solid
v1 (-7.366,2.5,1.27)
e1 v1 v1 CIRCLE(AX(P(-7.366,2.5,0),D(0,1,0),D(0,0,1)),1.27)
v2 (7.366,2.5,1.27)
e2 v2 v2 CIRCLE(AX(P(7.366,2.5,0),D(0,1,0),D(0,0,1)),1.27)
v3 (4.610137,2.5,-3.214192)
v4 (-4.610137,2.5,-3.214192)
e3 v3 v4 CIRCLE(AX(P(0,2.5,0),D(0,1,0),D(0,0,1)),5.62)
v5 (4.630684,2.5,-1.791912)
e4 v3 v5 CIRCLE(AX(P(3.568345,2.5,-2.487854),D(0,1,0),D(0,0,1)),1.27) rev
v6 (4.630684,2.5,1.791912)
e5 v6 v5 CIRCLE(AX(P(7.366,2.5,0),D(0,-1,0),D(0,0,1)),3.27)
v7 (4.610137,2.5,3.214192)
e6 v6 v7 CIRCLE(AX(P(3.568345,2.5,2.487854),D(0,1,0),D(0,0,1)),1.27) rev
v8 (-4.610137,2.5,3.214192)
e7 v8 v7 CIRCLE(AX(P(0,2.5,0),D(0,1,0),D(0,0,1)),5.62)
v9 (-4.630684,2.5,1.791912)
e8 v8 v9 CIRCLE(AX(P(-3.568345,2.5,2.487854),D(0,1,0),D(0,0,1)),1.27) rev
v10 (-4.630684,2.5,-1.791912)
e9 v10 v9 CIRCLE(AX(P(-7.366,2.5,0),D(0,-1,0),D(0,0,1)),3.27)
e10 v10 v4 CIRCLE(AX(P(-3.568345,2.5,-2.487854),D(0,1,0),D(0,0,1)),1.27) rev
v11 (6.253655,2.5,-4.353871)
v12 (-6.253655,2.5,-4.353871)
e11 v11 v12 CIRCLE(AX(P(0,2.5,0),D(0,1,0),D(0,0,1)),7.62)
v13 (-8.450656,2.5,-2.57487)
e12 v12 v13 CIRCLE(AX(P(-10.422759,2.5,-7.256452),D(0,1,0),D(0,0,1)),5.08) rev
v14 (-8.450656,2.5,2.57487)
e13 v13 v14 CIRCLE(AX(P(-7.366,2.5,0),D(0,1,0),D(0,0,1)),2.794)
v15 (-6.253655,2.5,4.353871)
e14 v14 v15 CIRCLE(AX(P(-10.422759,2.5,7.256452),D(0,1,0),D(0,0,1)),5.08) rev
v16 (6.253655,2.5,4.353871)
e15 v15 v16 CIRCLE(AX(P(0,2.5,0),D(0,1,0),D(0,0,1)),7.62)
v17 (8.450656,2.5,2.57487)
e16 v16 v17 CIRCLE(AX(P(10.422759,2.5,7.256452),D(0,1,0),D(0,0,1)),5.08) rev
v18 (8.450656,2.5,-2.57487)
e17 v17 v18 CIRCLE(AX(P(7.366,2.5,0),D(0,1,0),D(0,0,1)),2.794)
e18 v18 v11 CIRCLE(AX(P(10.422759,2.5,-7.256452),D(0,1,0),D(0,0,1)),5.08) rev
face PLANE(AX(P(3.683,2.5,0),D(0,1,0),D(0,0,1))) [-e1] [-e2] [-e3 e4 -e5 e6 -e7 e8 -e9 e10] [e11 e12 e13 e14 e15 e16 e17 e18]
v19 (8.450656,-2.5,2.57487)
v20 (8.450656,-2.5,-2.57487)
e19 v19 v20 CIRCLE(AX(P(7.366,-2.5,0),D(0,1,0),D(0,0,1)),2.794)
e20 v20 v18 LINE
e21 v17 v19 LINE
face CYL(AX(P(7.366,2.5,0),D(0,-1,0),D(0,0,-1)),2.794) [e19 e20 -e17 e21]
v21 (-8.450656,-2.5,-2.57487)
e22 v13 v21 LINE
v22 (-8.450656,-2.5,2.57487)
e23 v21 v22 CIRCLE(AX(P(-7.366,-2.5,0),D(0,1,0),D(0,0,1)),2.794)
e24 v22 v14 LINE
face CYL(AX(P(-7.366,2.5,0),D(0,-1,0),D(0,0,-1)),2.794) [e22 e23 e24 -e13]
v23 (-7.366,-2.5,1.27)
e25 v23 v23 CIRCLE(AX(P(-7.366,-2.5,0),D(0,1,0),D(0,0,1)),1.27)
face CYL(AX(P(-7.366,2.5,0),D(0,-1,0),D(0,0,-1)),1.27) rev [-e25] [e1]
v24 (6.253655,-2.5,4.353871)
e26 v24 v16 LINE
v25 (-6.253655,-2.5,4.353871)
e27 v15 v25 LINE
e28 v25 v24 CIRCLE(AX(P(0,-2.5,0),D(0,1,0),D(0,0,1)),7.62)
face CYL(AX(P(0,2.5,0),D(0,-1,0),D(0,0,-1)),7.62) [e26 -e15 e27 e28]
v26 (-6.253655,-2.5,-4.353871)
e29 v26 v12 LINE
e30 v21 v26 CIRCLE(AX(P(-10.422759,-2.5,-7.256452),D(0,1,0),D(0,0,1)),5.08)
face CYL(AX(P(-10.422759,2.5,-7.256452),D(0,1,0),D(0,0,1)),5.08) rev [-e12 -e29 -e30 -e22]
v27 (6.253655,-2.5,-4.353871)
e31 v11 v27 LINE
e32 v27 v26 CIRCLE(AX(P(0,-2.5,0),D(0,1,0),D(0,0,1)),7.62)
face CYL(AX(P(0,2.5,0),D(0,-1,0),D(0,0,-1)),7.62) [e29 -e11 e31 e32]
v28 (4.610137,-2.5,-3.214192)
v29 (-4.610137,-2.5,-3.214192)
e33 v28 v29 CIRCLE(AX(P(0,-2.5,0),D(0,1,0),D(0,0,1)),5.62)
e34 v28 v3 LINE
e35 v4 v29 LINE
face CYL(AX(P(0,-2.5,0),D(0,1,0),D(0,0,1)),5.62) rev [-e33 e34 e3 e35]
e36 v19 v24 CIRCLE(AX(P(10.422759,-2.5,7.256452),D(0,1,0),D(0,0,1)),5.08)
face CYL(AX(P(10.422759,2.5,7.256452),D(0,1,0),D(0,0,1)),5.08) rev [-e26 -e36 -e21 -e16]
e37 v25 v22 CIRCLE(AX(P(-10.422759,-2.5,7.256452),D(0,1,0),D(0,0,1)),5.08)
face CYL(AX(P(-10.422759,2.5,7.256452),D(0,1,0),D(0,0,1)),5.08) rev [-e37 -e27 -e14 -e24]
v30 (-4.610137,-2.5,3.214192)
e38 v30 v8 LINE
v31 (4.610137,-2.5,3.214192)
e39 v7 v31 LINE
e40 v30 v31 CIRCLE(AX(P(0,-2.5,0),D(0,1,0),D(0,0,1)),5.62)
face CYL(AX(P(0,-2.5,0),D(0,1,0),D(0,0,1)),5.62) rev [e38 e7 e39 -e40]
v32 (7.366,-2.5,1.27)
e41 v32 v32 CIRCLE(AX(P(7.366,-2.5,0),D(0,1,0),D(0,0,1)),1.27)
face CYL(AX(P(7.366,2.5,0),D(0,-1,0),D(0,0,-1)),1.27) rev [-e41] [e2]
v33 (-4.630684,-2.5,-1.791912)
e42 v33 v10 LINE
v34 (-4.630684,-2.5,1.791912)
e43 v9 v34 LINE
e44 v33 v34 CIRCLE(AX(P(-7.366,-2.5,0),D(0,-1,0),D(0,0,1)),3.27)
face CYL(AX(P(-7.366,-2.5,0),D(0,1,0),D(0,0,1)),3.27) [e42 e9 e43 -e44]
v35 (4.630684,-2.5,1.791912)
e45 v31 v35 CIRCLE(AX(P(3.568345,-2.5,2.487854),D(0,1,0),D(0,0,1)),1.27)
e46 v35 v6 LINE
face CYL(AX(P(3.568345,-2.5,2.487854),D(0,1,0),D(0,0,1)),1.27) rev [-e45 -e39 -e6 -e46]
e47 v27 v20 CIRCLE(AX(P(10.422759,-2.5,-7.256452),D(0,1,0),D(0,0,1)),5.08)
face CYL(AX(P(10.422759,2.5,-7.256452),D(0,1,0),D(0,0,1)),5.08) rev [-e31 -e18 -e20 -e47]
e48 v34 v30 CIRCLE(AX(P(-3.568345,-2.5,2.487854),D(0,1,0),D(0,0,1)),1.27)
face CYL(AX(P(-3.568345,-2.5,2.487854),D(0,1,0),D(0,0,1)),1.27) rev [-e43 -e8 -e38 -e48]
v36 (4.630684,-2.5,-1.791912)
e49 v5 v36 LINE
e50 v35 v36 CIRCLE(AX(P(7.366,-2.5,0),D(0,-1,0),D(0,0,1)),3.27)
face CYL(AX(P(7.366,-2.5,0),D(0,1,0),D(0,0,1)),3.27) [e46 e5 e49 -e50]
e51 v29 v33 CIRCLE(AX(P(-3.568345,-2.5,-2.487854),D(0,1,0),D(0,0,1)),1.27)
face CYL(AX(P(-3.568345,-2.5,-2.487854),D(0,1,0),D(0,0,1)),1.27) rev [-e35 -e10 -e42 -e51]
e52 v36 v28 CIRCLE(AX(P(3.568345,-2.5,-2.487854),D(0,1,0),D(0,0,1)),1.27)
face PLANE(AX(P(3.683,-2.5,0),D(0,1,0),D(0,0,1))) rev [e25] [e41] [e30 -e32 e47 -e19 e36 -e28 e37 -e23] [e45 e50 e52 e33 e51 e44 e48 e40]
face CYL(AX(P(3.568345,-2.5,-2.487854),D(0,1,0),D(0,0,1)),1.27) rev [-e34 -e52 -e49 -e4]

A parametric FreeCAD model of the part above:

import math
import FreeCAD as App
import Part
import Sketcher

V = App.Vector
Q = App.Units.Quantity


def edges_at(feature, points):
    """Names of the edges that pass closest to the given points."""
    edges = feature.Shape.Edges
    near = lambda p: min(range(len(edges)), key=lambda i: edges[i].distToShape(Part.Vertex(*p))[0])
    return sorted({f"Edge{near(p) + 1}" for p in points})

doc = App.newDocument("Part")
body = doc.addObject("PartDesign::Body", "Body")

# Sketch on XZ plane
sketch1 = body.newObject("Sketcher::SketchObject", "Sketch")
sketch1.AttachmentSupport = (doc.getObject("XZ_Plane"), [""])
sketch1.MapMode = "FlatFace"
sketch1.addGeometry([
    Part.ArcOfCircle(Part.Circle(V(0, 0, 0), V(0, 0, 1), 7.6), math.radians(-159), math.radians(-21)),  # 0
    Part.ArcOfCircle(Part.Circle(V(-7.4, 0, 0), V(0, 0, 1), 2.8), math.radians(84), math.radians(276)),  # 1
    Part.ArcOfCircle(Part.Circle(V(0, 0, 0), V(0, 0, 1), 7.6), math.radians(21), math.radians(159)),  # 2
    Part.ArcOfCircle(Part.Circle(V(7.4, 0, 0), V(0, 0, 1), 2.8), math.radians(-96), math.radians(96)),  # 3
    Part.Circle(V(-7.4, 0, 0), V(0, 0, 1), 1.3),  # 4
    Part.Circle(V(7.4, 0, 0), V(0, 0, 1), 1.3),  # 5
], False)
sketch1.addConstraint([
    Sketcher.Constraint("Coincident", 0, 1, 1, 2),
    Sketcher.Constraint("Coincident", 1, 1, 2, 2),
    Sketcher.Constraint("Coincident", 2, 1, 3, 2),
    Sketcher.Constraint("Coincident", 3, 1, 0, 2),
    Sketcher.Constraint("Coincident", 0, 3, -1, 1),
    Sketcher.Constraint("Coincident", 2, 3, -1, 1),
    Sketcher.Constraint("Coincident", 4, 3, 1, 3),
    Sketcher.Constraint("Coincident", 5, 3, 3, 3),
    Sketcher.Constraint("Equal", 0, 2),
    Sketcher.Constraint("Equal", 1, 3),
    Sketcher.Constraint("Equal", 4, 5),
    Sketcher.Constraint("Symmetric", 1, 3, 3, 3, -1, 1),
    Sketcher.Constraint("PointOnObject", 1, 3, -1),
    Sketcher.Constraint("Diameter", 4, Q("0.1 in")),
    Sketcher.Constraint("Radius", 0, Q("0.3 in")),
    Sketcher.Constraint("Radius", 1, Q("0.11 in")),
    Sketcher.Constraint("DistanceX", 1, 3, -1, 1, Q("0.29 in")),
])
pad1 = body.newObject("PartDesign::Pad", "Pad")
pad1.Profile = sketch1
pad1.Length = 5
pad1.Midplane = True
doc.recompute()

fillet = body.newObject("PartDesign::Fillet", "Fillet")
fillet.Base = (pad1, edges_at(pad1, [
    (-7.094, 0, 2.781),
    (-7.094, 0, -2.781),
    (7.094, 0, -2.781),
    (7.094, 0, 2.781),
]))
fillet.Radius = Q("0.2 in")

# Sketch on XZ plane
sketch2 = body.newObject("Sketcher::SketchObject", "Sketch001")
sketch2.AttachmentSupport = (doc.getObject("XZ_Plane"), [""])
sketch2.MapMode = "FlatFace"
sketch2.AttachmentOffset = App.Placement(V(0, 0, -2.5), App.Rotation())
sketch2.addGeometry([
    Part.ArcOfCircle(Part.Circle(V(7.4, 0, 0), V(0, 0, 1), 3.3), math.radians(131), math.radians(229)),  # 0
    Part.ArcOfCircle(Part.Circle(V(10.4, -7.3, 0), V(0, 0, 1), 7.1), math.radians(137.37), math.radians(145.15)),  # 1
    Part.ArcOfCircle(Part.Circle(V(0, 0, 0), V(0, 0, 1), 5.6), math.radians(-145), math.radians(-35)),  # 2
    Part.ArcOfCircle(Part.Circle(V(-10.4, -7.3, 0), V(0, 0, 1), 7.1), math.radians(34.85), math.radians(42.63)),  # 3
    Part.ArcOfCircle(Part.Circle(V(-7.4, 0, 0), V(0, 0, 1), 3.3), math.radians(-49), math.radians(49)),  # 4
    Part.ArcOfCircle(Part.Circle(V(-10.4, 7.3, 0), V(0, 0, 1), 7.1), math.radians(-42.63), math.radians(-34.85)),  # 5
    Part.ArcOfCircle(Part.Circle(V(0, 0, 0), V(0, 0, 1), 5.6), math.radians(35), math.radians(145)),  # 6
    Part.ArcOfCircle(Part.Circle(V(10.4, 7.3, 0), V(0, 0, 1), 7.1), math.radians(-145.15), math.radians(-137.37)),  # 7
], False)
sketch2.addConstraint([
    Sketcher.Constraint("Coincident", 0, 2, 1, 1),
    Sketcher.Constraint("Tangent", 1, 2, 2, 2),
    Sketcher.Constraint("Tangent", 2, 1, 3, 1),
    Sketcher.Constraint("Coincident", 3, 2, 4, 1),
    Sketcher.Constraint("Coincident", 4, 2, 5, 1),
    Sketcher.Constraint("Tangent", 5, 2, 6, 2),
    Sketcher.Constraint("Tangent", 6, 1, 7, 1),
    Sketcher.Constraint("Coincident", 7, 2, 0, 1),
    Sketcher.Constraint("Coincident", 2, 3, -1, 1),
    Sketcher.Constraint("Coincident", 6, 3, -1, 1),
    Sketcher.Constraint("Equal", 1, 3),
    Sketcher.Constraint("Equal", 0, 4),
    Sketcher.Constraint("Equal", 3, 5),
    Sketcher.Constraint("Equal", 2, 6),
    Sketcher.Constraint("Equal", 5, 7),
    Sketcher.Constraint("Symmetric", 0, 3, 4, 3, -1, 1),
    Sketcher.Constraint("Symmetric", 0, 2, 3, 2, -2),
    Sketcher.Constraint("Horizontal", 5, 3, 7, 3),
    Sketcher.Constraint("Vertical", 3, 3, 5, 3),
    Sketcher.Constraint("DistanceX", -1, 1, 0, 3, Q("0.29 in")),
    Sketcher.Constraint("Radius", 0, Q("3.27 mm")),
    Sketcher.Constraint("Radius", 1, Q("7.08 mm")),
    Sketcher.Constraint("Radius", 2, Q("5.62 mm")),
    Sketcher.Constraint("DistanceY", 0, 2, 7, 3, Q("9.718099 mm")),
])
pocket1 = body.newObject("PartDesign::Pocket", "Pocket")
pocket1.Profile = sketch2
pocket1.Type = "ThroughAll"
pocket1.Reversed = True
doc.recompute()

fillet2 = body.newObject("PartDesign::Fillet", "Fillet001")
fillet2.Base = (pocket1, edges_at(pocket1, [
    (5.214, 0, -2.462),
    (-5.214, 0, -2.462),
    (-5.214, 0, 2.462),
    (5.214, 0, 2.462),
]))
fillet2.Radius = Q("0.05 in")

doc.recompute()
